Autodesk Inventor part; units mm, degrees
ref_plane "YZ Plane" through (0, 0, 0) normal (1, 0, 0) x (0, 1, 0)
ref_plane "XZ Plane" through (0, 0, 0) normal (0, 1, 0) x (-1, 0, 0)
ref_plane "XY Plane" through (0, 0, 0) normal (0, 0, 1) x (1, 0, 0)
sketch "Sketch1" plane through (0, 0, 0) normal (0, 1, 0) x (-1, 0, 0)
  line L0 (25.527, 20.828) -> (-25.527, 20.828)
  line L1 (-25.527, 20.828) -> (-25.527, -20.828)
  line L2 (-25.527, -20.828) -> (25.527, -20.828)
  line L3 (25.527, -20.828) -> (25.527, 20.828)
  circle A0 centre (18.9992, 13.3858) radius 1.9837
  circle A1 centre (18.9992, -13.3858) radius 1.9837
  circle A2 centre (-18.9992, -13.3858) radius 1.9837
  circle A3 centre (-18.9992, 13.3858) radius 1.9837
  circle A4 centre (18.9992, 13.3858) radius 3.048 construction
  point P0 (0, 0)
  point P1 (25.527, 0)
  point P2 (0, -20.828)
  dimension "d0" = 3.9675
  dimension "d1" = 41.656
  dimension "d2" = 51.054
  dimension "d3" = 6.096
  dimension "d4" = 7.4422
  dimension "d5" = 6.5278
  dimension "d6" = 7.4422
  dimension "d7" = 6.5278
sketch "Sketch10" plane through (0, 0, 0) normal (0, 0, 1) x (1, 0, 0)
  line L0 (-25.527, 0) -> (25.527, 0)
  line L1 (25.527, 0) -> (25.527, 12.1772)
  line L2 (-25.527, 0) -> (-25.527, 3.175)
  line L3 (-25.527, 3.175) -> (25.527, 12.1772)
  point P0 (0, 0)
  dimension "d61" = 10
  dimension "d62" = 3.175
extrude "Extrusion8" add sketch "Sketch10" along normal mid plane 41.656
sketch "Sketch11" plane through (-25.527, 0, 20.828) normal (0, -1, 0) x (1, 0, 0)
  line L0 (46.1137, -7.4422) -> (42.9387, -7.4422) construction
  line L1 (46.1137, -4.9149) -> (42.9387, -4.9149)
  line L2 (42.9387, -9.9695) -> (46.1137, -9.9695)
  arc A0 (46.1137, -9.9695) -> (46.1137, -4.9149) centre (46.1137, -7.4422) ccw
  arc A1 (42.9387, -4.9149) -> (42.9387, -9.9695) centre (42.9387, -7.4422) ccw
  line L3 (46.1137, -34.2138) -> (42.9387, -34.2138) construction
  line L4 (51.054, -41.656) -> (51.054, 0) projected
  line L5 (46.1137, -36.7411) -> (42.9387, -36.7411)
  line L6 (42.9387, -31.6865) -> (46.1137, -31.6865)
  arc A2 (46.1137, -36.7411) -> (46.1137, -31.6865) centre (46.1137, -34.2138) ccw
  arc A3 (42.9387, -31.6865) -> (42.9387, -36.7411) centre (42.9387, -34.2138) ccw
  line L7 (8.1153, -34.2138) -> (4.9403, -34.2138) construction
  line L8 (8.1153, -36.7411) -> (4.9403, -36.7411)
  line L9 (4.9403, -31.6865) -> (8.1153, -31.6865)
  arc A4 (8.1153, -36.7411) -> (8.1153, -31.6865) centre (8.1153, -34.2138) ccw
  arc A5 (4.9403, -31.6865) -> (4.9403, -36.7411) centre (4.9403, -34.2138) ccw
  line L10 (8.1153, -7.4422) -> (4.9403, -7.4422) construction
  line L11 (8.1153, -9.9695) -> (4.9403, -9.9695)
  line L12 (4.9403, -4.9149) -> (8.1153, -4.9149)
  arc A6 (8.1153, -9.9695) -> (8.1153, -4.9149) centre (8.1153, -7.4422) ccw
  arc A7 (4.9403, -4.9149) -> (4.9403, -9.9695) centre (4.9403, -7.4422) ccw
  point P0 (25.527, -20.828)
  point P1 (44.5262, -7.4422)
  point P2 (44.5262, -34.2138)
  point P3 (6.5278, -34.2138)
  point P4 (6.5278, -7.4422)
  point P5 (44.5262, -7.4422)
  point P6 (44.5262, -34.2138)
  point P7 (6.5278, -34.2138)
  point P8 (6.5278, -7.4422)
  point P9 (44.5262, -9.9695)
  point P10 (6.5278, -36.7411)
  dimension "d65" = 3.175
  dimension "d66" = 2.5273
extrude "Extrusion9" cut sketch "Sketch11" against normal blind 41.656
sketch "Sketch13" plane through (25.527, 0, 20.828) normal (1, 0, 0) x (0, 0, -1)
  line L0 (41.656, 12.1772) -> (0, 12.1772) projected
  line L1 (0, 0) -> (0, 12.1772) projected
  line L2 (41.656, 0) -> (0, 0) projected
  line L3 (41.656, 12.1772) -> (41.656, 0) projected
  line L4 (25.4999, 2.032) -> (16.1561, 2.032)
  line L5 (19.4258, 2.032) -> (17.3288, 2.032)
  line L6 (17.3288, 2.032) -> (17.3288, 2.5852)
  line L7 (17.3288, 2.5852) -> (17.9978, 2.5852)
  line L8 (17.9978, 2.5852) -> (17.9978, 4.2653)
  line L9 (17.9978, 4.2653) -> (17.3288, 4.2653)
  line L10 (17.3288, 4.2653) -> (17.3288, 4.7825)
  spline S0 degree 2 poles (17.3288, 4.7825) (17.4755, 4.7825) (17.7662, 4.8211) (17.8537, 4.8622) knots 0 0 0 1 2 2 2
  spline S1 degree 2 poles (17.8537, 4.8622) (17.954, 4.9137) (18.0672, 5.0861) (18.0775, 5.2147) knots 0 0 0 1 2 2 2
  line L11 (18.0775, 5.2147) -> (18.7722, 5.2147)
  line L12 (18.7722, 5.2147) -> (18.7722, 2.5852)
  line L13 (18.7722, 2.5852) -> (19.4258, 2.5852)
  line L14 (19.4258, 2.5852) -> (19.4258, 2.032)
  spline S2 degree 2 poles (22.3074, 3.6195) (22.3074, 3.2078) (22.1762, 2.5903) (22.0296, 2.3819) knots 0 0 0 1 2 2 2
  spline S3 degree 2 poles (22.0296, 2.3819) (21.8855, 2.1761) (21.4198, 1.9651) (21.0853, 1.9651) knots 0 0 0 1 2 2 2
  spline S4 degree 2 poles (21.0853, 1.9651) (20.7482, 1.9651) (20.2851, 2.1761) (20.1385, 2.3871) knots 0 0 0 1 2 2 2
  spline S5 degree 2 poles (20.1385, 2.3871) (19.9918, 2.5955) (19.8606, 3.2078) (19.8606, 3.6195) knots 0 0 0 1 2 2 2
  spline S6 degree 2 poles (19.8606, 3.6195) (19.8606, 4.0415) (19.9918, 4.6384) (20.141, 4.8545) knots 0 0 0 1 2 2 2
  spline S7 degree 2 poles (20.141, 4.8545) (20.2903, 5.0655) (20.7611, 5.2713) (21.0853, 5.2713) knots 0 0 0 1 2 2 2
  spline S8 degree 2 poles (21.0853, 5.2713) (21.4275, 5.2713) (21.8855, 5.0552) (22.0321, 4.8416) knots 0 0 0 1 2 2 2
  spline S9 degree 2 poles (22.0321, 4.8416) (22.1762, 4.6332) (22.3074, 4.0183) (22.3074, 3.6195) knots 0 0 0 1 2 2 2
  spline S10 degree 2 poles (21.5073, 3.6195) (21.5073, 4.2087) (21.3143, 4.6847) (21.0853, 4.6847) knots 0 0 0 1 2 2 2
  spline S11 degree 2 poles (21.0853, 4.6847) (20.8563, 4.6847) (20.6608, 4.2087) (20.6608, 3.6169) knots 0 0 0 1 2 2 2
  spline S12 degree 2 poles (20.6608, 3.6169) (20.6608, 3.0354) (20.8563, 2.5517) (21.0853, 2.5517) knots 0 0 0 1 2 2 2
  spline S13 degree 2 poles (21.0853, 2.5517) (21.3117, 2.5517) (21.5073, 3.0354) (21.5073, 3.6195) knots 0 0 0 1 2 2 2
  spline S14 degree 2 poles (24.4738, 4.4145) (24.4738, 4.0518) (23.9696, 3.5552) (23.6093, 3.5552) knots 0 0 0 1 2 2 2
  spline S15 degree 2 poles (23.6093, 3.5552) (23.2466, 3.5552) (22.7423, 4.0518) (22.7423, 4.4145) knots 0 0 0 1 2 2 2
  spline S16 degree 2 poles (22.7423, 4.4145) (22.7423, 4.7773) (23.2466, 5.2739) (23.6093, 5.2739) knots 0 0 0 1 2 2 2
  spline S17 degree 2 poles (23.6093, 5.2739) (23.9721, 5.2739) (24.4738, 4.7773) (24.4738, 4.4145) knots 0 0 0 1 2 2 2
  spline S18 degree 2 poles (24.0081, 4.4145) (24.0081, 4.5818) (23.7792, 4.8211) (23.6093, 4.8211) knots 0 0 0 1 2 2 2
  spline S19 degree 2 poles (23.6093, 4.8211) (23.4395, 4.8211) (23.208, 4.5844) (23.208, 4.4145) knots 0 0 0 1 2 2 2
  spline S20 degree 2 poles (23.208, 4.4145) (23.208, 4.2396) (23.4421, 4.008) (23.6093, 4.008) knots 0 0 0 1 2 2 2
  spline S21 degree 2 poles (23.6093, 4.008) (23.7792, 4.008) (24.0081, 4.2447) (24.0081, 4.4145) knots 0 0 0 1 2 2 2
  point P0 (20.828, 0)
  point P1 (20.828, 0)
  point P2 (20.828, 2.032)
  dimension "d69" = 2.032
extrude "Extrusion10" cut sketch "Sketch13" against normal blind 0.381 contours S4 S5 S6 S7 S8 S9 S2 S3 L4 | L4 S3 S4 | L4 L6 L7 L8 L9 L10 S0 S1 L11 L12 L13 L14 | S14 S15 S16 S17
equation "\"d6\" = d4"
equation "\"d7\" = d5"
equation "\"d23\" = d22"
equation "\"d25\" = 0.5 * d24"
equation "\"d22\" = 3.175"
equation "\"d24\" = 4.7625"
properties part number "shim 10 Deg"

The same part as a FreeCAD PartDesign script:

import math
import FreeCAD as App
import Part
import Sketcher
from FreeCAD import Vector
Q = App.Units.Quantity

doc = App.newDocument("Part")
body = doc.addObject("PartDesign::Body", "Body")

sketch1 = body.newObject("Sketcher::SketchObject", "Sketch")
sketch1.AttachmentSupport = (doc.getObject("XY_Plane"), [""])
sketch1.MapMode = "FlatFace"
sketch1.addGeometry(Part.LineSegment(Vector(-25.5, 3.2, 0), Vector(-25.5, 0, 0)), False)
sketch1.addGeometry(Part.LineSegment(Vector(-25.5, 0, 0), Vector(25.5, 0, 0)), False)
sketch1.addGeometry(Part.LineSegment(Vector(25.5, 0, 0), Vector(25.5, 12.2, 0)), False)
sketch1.addGeometry(Part.LineSegment(Vector(25.5, 12.2, 0), Vector(-25.5, 3.2, 0)), False)
sketch1.addConstraint(Sketcher.Constraint("Coincident", 0, 2, 1, 1))
sketch1.addConstraint(Sketcher.Constraint("Coincident", 1, 2, 2, 1))
sketch1.addConstraint(Sketcher.Constraint("Coincident", 2, 2, 3, 1))
sketch1.addConstraint(Sketcher.Constraint("Coincident", 3, 2, 0, 1))
sketch1.addConstraint(Sketcher.Constraint("Vertical", 0))
sketch1.addConstraint(Sketcher.Constraint("Horizontal", 1))
sketch1.addConstraint(Sketcher.Constraint("Vertical", 2))
sketch1.addConstraint(Sketcher.Constraint("Symmetric", 0, 2, 1, 2, -1, 1))
sketch1.addConstraint(Sketcher.Constraint("DistanceY", 0, 2, 0, 1, Q("0.125 in")))
sketch1.addConstraint(Sketcher.Constraint("Angle", 3, Q("-170 deg")))
sketch1.addConstraint(Sketcher.Constraint("DistanceX", 1, 1, 1, 2, Q("2.01 in")))
pad1 = body.newObject("PartDesign::Pad", "Pad")
pad1.Profile = sketch1
pad1.Length = Q("1.64 in")
pad1.Midplane = True

sketch2 = body.newObject("Sketcher::SketchObject", "Sketch001")
sketch2.AttachmentSupport = (doc.getObject("XZ_Plane"), [""])
sketch2.MapMode = "FlatFace"
sketch2.addGeometry(Part.ArcOfCircle(Part.Circle(Vector(20.6, 13.4, 0), Vector(0, 0, 1), 2.5), math.radians(-90), math.radians(90)), False)
sketch2.addGeometry(Part.LineSegment(Vector(20.6, 15.9, 0), Vector(17.4, 15.9, 0)), False)
sketch2.addGeometry(Part.ArcOfCircle(Part.Circle(Vector(17.4, 13.4, 0), Vector(0, 0, 1), 2.5), math.radians(90), math.radians(270)), False)
sketch2.addGeometry(Part.LineSegment(Vector(17.4, 10.9, 0), Vector(20.6, 10.9, 0)), False)
sketch2.addGeometry(Part.LineSegment(Vector(17.4, -15.9, 0), Vector(20.6, -15.9, 0)), False)
sketch2.addGeometry(Part.ArcOfCircle(Part.Circle(Vector(20.6, -13.4, 0), Vector(0, 0, 1), 2.5), math.radians(-90), math.radians(90)), False)
sketch2.addGeometry(Part.LineSegment(Vector(20.6, -10.9, 0), Vector(17.4, -10.9, 0)), False)
sketch2.addGeometry(Part.ArcOfCircle(Part.Circle(Vector(17.4, -13.4, 0), Vector(0, 0, 1), 2.5), math.radians(90), math.radians(270)), False)
sketch2.addGeometry(Part.LineSegment(Vector(-20.6, -15.9, 0), Vector(-17.4, -15.9, 0)), False)
sketch2.addGeometry(Part.ArcOfCircle(Part.Circle(Vector(-17.4, -13.4, 0), Vector(0, 0, 1), 2.5), math.radians(-90), math.radians(90)), False)
sketch2.addGeometry(Part.LineSegment(Vector(-17.4, -10.9, 0), Vector(-20.6, -10.9, 0)), False)
sketch2.addGeometry(Part.ArcOfCircle(Part.Circle(Vector(-20.6, -13.4, 0), Vector(0, 0, 1), 2.5), math.radians(90), math.radians(270)), False)
sketch2.addGeometry(Part.LineSegment(Vector(-20.6, 10.9, 0), Vector(-17.4, 10.9, 0)), False)
sketch2.addGeometry(Part.ArcOfCircle(Part.Circle(Vector(-17.4, 13.4, 0), Vector(0, 0, 1), 2.5), math.radians(-90), math.radians(90)), False)
sketch2.addGeometry(Part.LineSegment(Vector(-17.4, 15.9, 0), Vector(-20.6, 15.9, 0)), False)
sketch2.addGeometry(Part.ArcOfCircle(Part.Circle(Vector(-20.6, 13.4, 0), Vector(0, 0, 1), 2.5), math.radians(90), math.radians(270)), False)
sketch2.addConstraint(Sketcher.Constraint("Tangent", 0, 2, 1, 1))
sketch2.addConstraint(Sketcher.Constraint("Tangent", 1, 2, 2, 1))
sketch2.addConstraint(Sketcher.Constraint("Tangent", 2, 2, 3, 1))
sketch2.addConstraint(Sketcher.Constraint("Tangent", 3, 2, 0, 1))
sketch2.addConstraint(Sketcher.Constraint("Tangent", 4, 2, 5, 1))
sketch2.addConstraint(Sketcher.Constraint("Tangent", 5, 2, 6, 1))
sketch2.addConstraint(Sketcher.Constraint("Tangent", 6, 2, 7, 1))
sketch2.addConstraint(Sketcher.Constraint("Tangent", 7, 2, 4, 1))
sketch2.addConstraint(Sketcher.Constraint("Tangent", 8, 2, 9, 1))
sketch2.addConstraint(Sketcher.Constraint("Tangent", 9, 2, 10, 1))
sketch2.addConstraint(Sketcher.Constraint("Tangent", 10, 2, 11, 1))
sketch2.addConstraint(Sketcher.Constraint("Tangent", 11, 2, 8, 1))
sketch2.addConstraint(Sketcher.Constraint("Tangent", 12, 2, 13, 1))
sketch2.addConstraint(Sketcher.Constraint("Tangent", 13, 2, 14, 1))
sketch2.addConstraint(Sketcher.Constraint("Tangent", 14, 2, 15, 1))
sketch2.addConstraint(Sketcher.Constraint("Tangent", 15, 2, 12, 1))
sketch2.addConstraint(Sketcher.Constraint("Horizontal", 1))
sketch2.addConstraint(Sketcher.Constraint("Horizontal", 3))
sketch2.addConstraint(Sketcher.Constraint("Horizontal", 4))
sketch2.addConstraint(Sketcher.Constraint("Horizontal", 6))
sketch2.addConstraint(Sketcher.Constraint("Horizontal", 8))
sketch2.addConstraint(Sketcher.Constraint("Horizontal", 10))
sketch2.addConstraint(Sketcher.Constraint("Horizontal", 12))
sketch2.addConstraint(Sketcher.Constraint("Horizontal", 14))
sketch2.addConstraint(Sketcher.Constraint("Equal", 2, 5))
sketch2.addConstraint(Sketcher.Constraint("Equal", 7, 9))
sketch2.addConstraint(Sketcher.Constraint("Equal", 11, 13))
sketch2.addConstraint(Sketcher.Constraint("Symmetric", 2, 3, 9, 3, -1, 1))
sketch2.addConstraint(Sketcher.Constraint("Symmetric", 7, 3, 13, 3, -1, 1))
sketch2.addConstraint(Sketcher.Constraint("Symmetric", 7, 3, 9, 3, -2))
sketch2.addConstraint(Sketcher.Constraint("Vertical", 0, 3, 5, 3))
sketch2.addConstraint(Sketcher.Constraint("Vertical", 11, 3, 15, 3))
sketch2.addConstraint(Sketcher.Constraint("Equal", 6, 8))
sketch2.addConstraint(Sketcher.Constraint("Radius", 0, Q("0.0995 in")))
sketch2.addConstraint(Sketcher.Constraint("DistanceX", 1, 2, 1, 1, Q("0.125 in")))
sketch2.addConstraint(Sketcher.Constraint("DistanceY", -1, 1, 0, 3, Q("0.527 in")))
sketch2.addConstraint(Sketcher.Constraint("DistanceX", 9, 3, 7, 3, Q("1.371 in")))
pocket1 = body.newObject("PartDesign::Pocket", "Pocket")
pocket1.Profile = sketch2
pocket1.Length = Q("1.64 in")

sketch3 = body.newObject("Sketcher::SketchObject", "Sketch002")
sketch3.AttachmentSupport = (doc.getObject("YZ_Plane"), [""])
sketch3.MapMode = "FlatFace"
sketch3.AttachmentOffset = App.Placement(Vector(0, 0, 1.005 * 25.4), App.Rotation())
sketch3.addGeometry(Part.BSplineCurve([Vector(2.032, 0.212646, 0), Vector(2.049112, 0.264188, 0), Vector(2.1761, 0.5429, 0), Vector(2.3871, 0.6895, 0)], [3, 1, 3], [0.796318544, 1, 2], False, 2, [1, 1, 1, 1], False), False)
sketch3.addGeometry(Part.BSplineCurve([Vector(1.9651, -0.2573, 0), Vector(1.9651, 0.011139, 0), Vector(2.032, 0.212646, 0)], [3, 3], [0, 0.796318544], False, 2, [1, 1, 1], False), False)
sketch3.addGeometry(Part.BSplineCurve([Vector(2.032, -0.725578, 0), Vector(1.9651, -0.523669, 0), Vector(1.9651, -0.2573, 0)], [3, 3], [1.203681456, 2], False, 2, [1, 1, 1], False), False)
sketch3.addGeometry(Part.BSplineCurve([Vector(2.3819, -1.2016, 0), Vector(2.1761, -1.0575, 0), Vector(2.049112, -0.777223, 0), Vector(2.032, -0.725578, 0)], [3, 1, 3], [0, 1, 1.203681456], False, 2, [1, 1, 1, 1], False), False)
sketch3.addGeometry(Part.BSplineCurve([Vector(3.6195, -1.4794, 0), Vector(3.2078, -1.4794, 0), Vector(2.5903, -1.3482, 0), Vector(2.3819, -1.2016, 0)], [3, 1, 3], [0, 1, 2], False, 2, [1, 1, 1, 1], False), False)
sketch3.addGeometry(Part.BSplineCurve([Vector(4.8416, -1.2041, 0), Vector(4.6332, -1.3482, 0), Vector(4.0183, -1.4794, 0), Vector(3.6195, -1.4794, 0)], [3, 1, 3], [0, 1, 2], False, 2, [1, 1, 1, 1], False), False)
sketch3.addGeometry(Part.BSplineCurve([Vector(5.2713, -0.2573, 0), Vector(5.2713, -0.5995, 0), Vector(5.0552, -1.0575, 0), Vector(4.8416, -1.2041, 0)], [3, 1, 3], [0, 1, 2], False, 2, [1, 1, 1, 1], False), False)
sketch3.addGeometry(Part.BSplineCurve([Vector(4.8545, 0.687, 0), Vector(5.0655, 0.5377, 0), Vector(5.2713, 0.0669, 0), Vector(5.2713, -0.2573, 0)], [3, 1, 3], [0, 1, 2], False, 2, [1, 1, 1, 1], False), False)
sketch3.addGeometry(Part.BSplineCurve([Vector(3.6195, 0.9674, 0), Vector(4.0415, 0.9674, 0), Vector(4.6384, 0.8362, 0), Vector(4.8545, 0.687, 0)], [3, 1, 3], [0, 1, 2], False, 2, [1, 1, 1, 1], False), False)
sketch3.addGeometry(Part.BSplineCurve([Vector(2.3871, 0.6895, 0), Vector(2.5955, 0.8362, 0), Vector(3.2078, 0.9674, 0), Vector(3.6195, 0.9674, 0)], [3, 1, 3], [0, 1, 2], False, 2, [1, 1, 1, 1], False), False)
sketch3.addGeometry(Part.BSplineCurve([Vector(3.6195, -0.6793, 0), Vector(4.2087, -0.6793, 0), Vector(4.6847, -0.4863, 0), Vector(4.6847, -0.2573, 0)], [3, 1, 3], [0, 1, 2], False, 2, [1, 1, 1, 1], False), False)
sketch3.addGeometry(Part.BSplineCurve([Vector(2.5517, -0.2573, 0), Vector(2.5517, -0.4837, 0), Vector(3.0354, -0.6793, 0), Vector(3.6195, -0.6793, 0)], [3, 1, 3], [0, 1, 2], False, 2, [1, 1, 1, 1], False), False)
sketch3.addGeometry(Part.BSplineCurve([Vector(3.6169, 0.1672, 0), Vector(3.0354, 0.1672, 0), Vector(2.5517, -0.0283, 0), Vector(2.5517, -0.2573, 0)], [3, 1, 3], [0, 1, 2], False, 2, [1, 1, 1, 1], False), False)
sketch3.addGeometry(Part.BSplineCurve([Vector(4.6847, -0.2573, 0), Vector(4.6847, -0.0283, 0), Vector(4.2087, 0.1672, 0), Vector(3.6169, 0.1672, 0)], [3, 1, 3], [0, 1, 2], False, 2, [1, 1, 1, 1], False), False)
sketch3.addGeometry(Part.LineSegment(Vector(2.032, 3.4992, 0), Vector(2.032, 1.4022, 0)), False)
sketch3.addGeometry(Part.LineSegment(Vector(2.032, 1.4022, 0), Vector(2.5852, 1.4022, 0)), False)
sketch3.addGeometry(Part.LineSegment(Vector(2.5852, 1.4022, 0), Vector(2.5852, 2.0558, 0)), False)
sketch3.addGeometry(Part.LineSegment(Vector(2.5852, 2.0558, 0), Vector(5.2147, 2.0558, 0)), False)
sketch3.addGeometry(Part.LineSegment(Vector(5.2147, 2.0558, 0), Vector(5.2147, 2.7505, 0)), False)
sketch3.addGeometry(Part.BSplineCurve([Vector(4.8622, 2.9743, 0), Vector(4.9137, 2.874, 0), Vector(5.0861, 2.7608, 0), Vector(5.2147, 2.7505, 0)], [3, 1, 3], [0, 1, 2], False, 2, [1, 1, 1, 1], False), False)
sketch3.addGeometry(Part.BSplineCurve([Vector(4.7825, 3.4992, 0), Vector(4.7825, 3.3525, 0), Vector(4.8211, 3.0618, 0), Vector(4.8622, 2.9743, 0)], [3, 1, 3], [0, 1, 2], False, 2, [1, 1, 1, 1], False), False)
sketch3.addGeometry(Part.LineSegment(Vector(4.7825, 3.4992, 0), Vector(4.2653, 3.4992, 0)), False)
sketch3.addGeometry(Part.LineSegment(Vector(4.2653, 3.4992, 0), Vector(4.2653, 2.8302, 0)), False)
sketch3.addGeometry(Part.LineSegment(Vector(4.2653, 2.8302, 0), Vector(2.5852, 2.8302, 0)), False)
sketch3.addGeometry(Part.LineSegment(Vector(2.5852, 2.8302, 0), Vector(2.5852, 3.4992, 0)), False)
sketch3.addGeometry(Part.LineSegment(Vector(2.5852, 3.4992, 0), Vector(2.032, 3.4992, 0)), False)
sketch3.addGeometry(Part.BSplineCurve([Vector(4.4145, -3.6458, 0), Vector(4.0518, -3.6458, 0), Vector(3.5552, -3.1416, 0), Vector(3.5552, -2.7813, 0)], [3, 1, 3], [0, 1, 2], False, 2, [1, 1, 1, 1], False), False)
sketch3.addGeometry(Part.BSplineCurve([Vector(5.2739, -2.7813, 0), Vector(5.2739, -3.1441, 0), Vector(4.7773, -3.6458, 0), Vector(4.4145, -3.6458, 0)], [3, 1, 3], [0, 1, 2], False, 2, [1, 1, 1, 1], False), False)
sketch3.addGeometry(Part.BSplineCurve([Vector(4.4145, -1.9143, 0), Vector(4.7773, -1.9143, 0), Vector(5.2739, -2.4186, 0), Vector(5.2739, -2.7813, 0)], [3, 1, 3], [0, 1, 2], False, 2, [1, 1, 1, 1], False), False)
sketch3.addGeometry(Part.BSplineCurve([Vector(3.5552, -2.7813, 0), Vector(3.5552, -2.4186, 0), Vector(4.0518, -1.9143, 0), Vector(4.4145, -1.9143, 0)], [3, 1, 3], [0, 1, 2], False, 2, [1, 1, 1, 1], False), False)
sketch3.addGeometry(Part.BSplineCurve([Vector(4.4145, -3.1801, 0), Vector(4.5818, -3.1801, 0), Vector(4.8211, -2.9512, 0), Vector(4.8211, -2.7813, 0)], [3, 1, 3], [0, 1, 2], False, 2, [1, 1, 1, 1], False), False)
sketch3.addGeometry(Part.BSplineCurve([Vector(4.008, -2.7813, 0), Vector(4.008, -2.9512, 0), Vector(4.2447, -3.1801, 0), Vector(4.4145, -3.1801, 0)], [3, 1, 3], [0, 1, 2], False, 2, [1, 1, 1, 1], False), False)
sketch3.addGeometry(Part.BSplineCurve([Vector(4.4145, -2.38, 0), Vector(4.2396, -2.38, 0), Vector(4.008, -2.6141, 0), Vector(4.008, -2.7813, 0)], [3, 1, 3], [0, 1, 2], False, 2, [1, 1, 1, 1], False), False)
sketch3.addGeometry(Part.BSplineCurve([Vector(4.8211, -2.7813, 0), Vector(4.8211, -2.6115, 0), Vector(4.5844, -2.38, 0), Vector(4.4145, -2.38, 0)], [3, 1, 3], [0, 1, 2], False, 2, [1, 1, 1, 1], False), False)
sketch3.addConstraint(Sketcher.Constraint("Block", 0))
sketch3.addConstraint(Sketcher.Constraint("Block", 1))
sketch3.addConstraint(Sketcher.Constraint("Block", 2))
sketch3.addConstraint(Sketcher.Constraint("Block", 3))
sketch3.addConstraint(Sketcher.Constraint("Block", 4))
sketch3.addConstraint(Sketcher.Constraint("Block", 5))
sketch3.addConstraint(Sketcher.Constraint("Block", 6))
sketch3.addConstraint(Sketcher.Constraint("Block", 7))
sketch3.addConstraint(Sketcher.Constraint("Block", 8))
sketch3.addConstraint(Sketcher.Constraint("Block", 9))
sketch3.addConstraint(Sketcher.Constraint("Block", 10))
sketch3.addConstraint(Sketcher.Constraint("Block", 11))
sketch3.addConstraint(Sketcher.Constraint("Block", 12))
sketch3.addConstraint(Sketcher.Constraint("Block", 13))
sketch3.addConstraint(Sketcher.Constraint("Block", 19))
sketch3.addConstraint(Sketcher.Constraint("Block", 20))
sketch3.addConstraint(Sketcher.Constraint("Block", 26))
sketch3.addConstraint(Sketcher.Constraint("Block", 27))
sketch3.addConstraint(Sketcher.Constraint("Block", 28))
sketch3.addConstraint(Sketcher.Constraint("Block", 29))
sketch3.addConstraint(Sketcher.Constraint("Block", 30))
sketch3.addConstraint(Sketcher.Constraint("Block", 31))
sketch3.addConstraint(Sketcher.Constraint("Block", 32))
sketch3.addConstraint(Sketcher.Constraint("Block", 33))
sketch3.addConstraint(Sketcher.Constraint("Coincident", 14, 2, 15, 1))
sketch3.addConstraint(Sketcher.Constraint("Coincident", 15, 2, 16, 1))
sketch3.addConstraint(Sketcher.Constraint("Coincident", 16, 2, 17, 1))
sketch3.addConstraint(Sketcher.Constraint("Coincident", 17, 2, 18, 1))
sketch3.addConstraint(Sketcher.Constraint("Coincident", 18, 2, 19, 2))
sketch3.addConstraint(Sketcher.Constraint("Coincident", 20, 1, 21, 1))
sketch3.addConstraint(Sketcher.Constraint("Coincident", 21, 2, 22, 1))
sketch3.addConstraint(Sketcher.Constraint("Coincident", 22, 2, 23, 1))
sketch3.addConstraint(Sketcher.Constraint("Coincident", 23, 2, 24, 1))
sketch3.addConstraint(Sketcher.Constraint("Coincident", 24, 2, 25, 1))
sketch3.addConstraint(Sketcher.Constraint("Coincident", 25, 2, 14, 1))
sketch3.addConstraint(Sketcher.Constraint("Vertical", 14))
sketch3.addConstraint(Sketcher.Constraint("Horizontal", 15))
sketch3.addConstraint(Sketcher.Constraint("Vertical", 16))
sketch3.addConstraint(Sketcher.Constraint("Horizontal", 17))
sketch3.addConstraint(Sketcher.Constraint("Vertical", 18))
sketch3.addConstraint(Sketcher.Constraint("Horizontal", 21))
sketch3.addConstraint(Sketcher.Constraint("Vertical", 22))
sketch3.addConstraint(Sketcher.Constraint("Horizontal", 23))
sketch3.addConstraint(Sketcher.Constraint("Vertical", 24))
sketch3.addConstraint(Sketcher.Constraint("Horizontal", 25))
sketch3.addConstraint(Sketcher.Constraint("Horizontal", 21, 2, 24, 2))
sketch3.addConstraint(Sketcher.Constraint("Vertical", 16, 2, 23, 2))
sketch3.addConstraint(Sketcher.Constraint("DistanceX", -1, 1, 14, 2, Q("0.08 in")))
sketch3.addConstraint(Sketcher.Constraint("DistanceX", 15, 1, 15, 2, 0.5532))
sketch3.addConstraint(Sketcher.Constraint("DistanceX", 21, 2, 21, 1, 0.5172))
sketch3.addConstraint(Sketcher.Constraint("DistanceY", 14, 2, 14, 1, 2.097))
sketch3.addConstraint(Sketcher.Constraint("DistanceY", 16, 1, 16, 2, 0.6536))
sketch3.addConstraint(Sketcher.Constraint("DistanceY", 22, 2, 22, 1, 0.669))
pocket2 = body.newObject("PartDesign::Pocket", "Pocket001")
pocket2.Profile = sketch3
pocket2.Length = Q("0.015 in")

doc.recompute()
